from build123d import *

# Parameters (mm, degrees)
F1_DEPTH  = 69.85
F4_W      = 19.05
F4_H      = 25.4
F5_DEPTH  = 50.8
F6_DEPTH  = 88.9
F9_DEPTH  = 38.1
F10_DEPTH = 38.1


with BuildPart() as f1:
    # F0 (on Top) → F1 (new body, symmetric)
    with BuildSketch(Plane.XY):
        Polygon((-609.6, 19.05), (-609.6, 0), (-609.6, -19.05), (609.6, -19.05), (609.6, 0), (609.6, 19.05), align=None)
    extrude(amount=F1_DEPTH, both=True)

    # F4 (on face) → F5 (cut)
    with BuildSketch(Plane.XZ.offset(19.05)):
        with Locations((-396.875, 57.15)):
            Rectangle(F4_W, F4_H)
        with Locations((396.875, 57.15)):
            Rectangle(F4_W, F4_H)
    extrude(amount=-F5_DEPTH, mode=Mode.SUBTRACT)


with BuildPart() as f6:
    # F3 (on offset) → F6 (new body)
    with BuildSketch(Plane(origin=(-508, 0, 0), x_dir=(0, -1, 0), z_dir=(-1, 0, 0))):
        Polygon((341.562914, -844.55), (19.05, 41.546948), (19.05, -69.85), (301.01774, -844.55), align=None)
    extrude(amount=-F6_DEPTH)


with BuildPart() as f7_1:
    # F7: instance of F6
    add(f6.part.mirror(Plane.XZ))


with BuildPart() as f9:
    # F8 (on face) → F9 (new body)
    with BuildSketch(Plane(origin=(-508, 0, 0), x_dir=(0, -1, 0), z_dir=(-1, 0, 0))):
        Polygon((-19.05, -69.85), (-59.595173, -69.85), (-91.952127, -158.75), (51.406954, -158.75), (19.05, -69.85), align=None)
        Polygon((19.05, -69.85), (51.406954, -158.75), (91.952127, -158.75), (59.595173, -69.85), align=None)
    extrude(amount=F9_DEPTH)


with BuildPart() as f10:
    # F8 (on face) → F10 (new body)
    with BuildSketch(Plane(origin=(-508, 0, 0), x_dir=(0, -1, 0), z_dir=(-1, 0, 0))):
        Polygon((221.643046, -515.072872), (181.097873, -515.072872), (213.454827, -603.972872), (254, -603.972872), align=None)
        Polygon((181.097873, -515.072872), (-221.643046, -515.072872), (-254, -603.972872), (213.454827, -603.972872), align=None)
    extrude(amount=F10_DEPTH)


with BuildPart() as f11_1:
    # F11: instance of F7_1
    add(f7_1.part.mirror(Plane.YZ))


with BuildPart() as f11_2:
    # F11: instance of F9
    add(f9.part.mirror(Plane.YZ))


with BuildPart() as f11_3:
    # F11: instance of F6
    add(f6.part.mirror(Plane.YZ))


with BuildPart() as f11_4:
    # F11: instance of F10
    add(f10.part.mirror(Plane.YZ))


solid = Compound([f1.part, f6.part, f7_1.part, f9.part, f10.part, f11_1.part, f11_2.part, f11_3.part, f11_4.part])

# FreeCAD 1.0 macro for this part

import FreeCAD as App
import Part
import Sketcher
Q = App.Units.Quantity


def add_polygon(sketch, points):
    """Adds a closed chain of lines whose ends are joined by coincident constraints."""
    first, n = sketch.GeometryCount, len(points)
    for a, b in zip(points, points[1:] + points[:1]):
        sketch.addGeometry(Part.LineSegment(App.Vector(*a, 0), App.Vector(*b, 0)), False)
    for i in range(n):
        sketch.addConstraint(Sketcher.Constraint("Coincident", first + i, 2, first + (i + 1) % n, 1))

doc = App.newDocument("Part")
body = doc.addObject("PartDesign::Body", "Body")

sketch1 = doc.addObject("Sketcher::SketchObject", "Sketch")
body.addObject(sketch1)
sketch1.AttachmentSupport = (doc.XY_Plane, [""])
sketch1.MapMode = "FlatFace"
add_polygon(sketch1, [(-610, 19), (-610, -19), (610, -19), (610, 19)])
sketch1.addConstraint(Sketcher.Constraint("Vertical", 0))
sketch1.addConstraint(Sketcher.Constraint("Horizontal", 1))
sketch1.addConstraint(Sketcher.Constraint("Vertical", 2))
sketch1.addConstraint(Sketcher.Constraint("Horizontal", 3))
sketch1.addConstraint(Sketcher.Constraint("Symmetric", 0, 2, 2, 2, -1, 1))
sketch1.addConstraint(Sketcher.Constraint("DistanceX", 1, 1, 1, 2, Q("48 in")))
sketch1.addConstraint(Sketcher.Constraint("DistanceY", 0, 2, 0, 1, Q("1.5 in")))
pad1 = doc.addObject("PartDesign::Pad", "Pad")
body.addObject(pad1)
pad1.Profile = sketch1
pad1.Length = Q("5.5 in")
pad1.Midplane = True

sketch2 = doc.addObject("Sketcher::SketchObject", "Sketch001")
body.addObject(sketch2)
sketch2.AttachmentSupport = (doc.XZ_Plane, [""])
sketch2.MapMode = "FlatFace"
sketch2.AttachmentOffset = App.Placement(App.Vector(0, 0, 0.75 * 25.4), App.Rotation())
add_polygon(sketch2, [(-406, 70), (-406, 44), (-387, 44), (-387, 70)])
add_polygon(sketch2, [(387, 70), (387, 44), (406, 44), (406, 70)])
sketch2.addConstraint(Sketcher.Constraint("Vertical", 0))
sketch2.addConstraint(Sketcher.Constraint("Horizontal", 1))
sketch2.addConstraint(Sketcher.Constraint("Vertical", 2))
sketch2.addConstraint(Sketcher.Constraint("Horizontal", 3))
sketch2.addConstraint(Sketcher.Constraint("Vertical", 4))
sketch2.addConstraint(Sketcher.Constraint("Horizontal", 5))
sketch2.addConstraint(Sketcher.Constraint("Vertical", 6))
sketch2.addConstraint(Sketcher.Constraint("Horizontal", 7))
sketch2.addConstraint(Sketcher.Constraint("Symmetric", 1, 2, 4, 2, -2))
sketch2.addConstraint(Sketcher.Constraint("Symmetric", 3, 2, 6, 2, -2))
sketch2.addConstraint(Sketcher.Constraint("DistanceY", 0, 2, 0, 1, Q("1 in")))
sketch2.addConstraint(Sketcher.Constraint("DistanceX", 0, 2, -1, 1, Q("16 in")))
sketch2.addConstraint(Sketcher.Constraint("DistanceX", 1, 1, 1, 2, Q("0.75 in")))
sketch2.addConstraint(Sketcher.Constraint("DistanceY", -1, 1, 0, 2, Q("1.75 in")))
pocket1 = doc.addObject("PartDesign::Pocket", "Pocket")
body.addObject(pocket1)
pocket1.Profile = sketch2
pocket1.Length = Q("2 in")
body2 = doc.addObject("PartDesign::Body", "Body001")

sketch3 = doc.addObject("Sketcher::SketchObject", "Sketch002")
body2.addObject(sketch3)
sketch3.AttachmentSupport = (doc.getObject("YZ_Plane001"), [""])
sketch3.MapMode = "FlatFace"
sketch3.AttachmentOffset = App.Placement(App.Vector(0, 0, -20 * 25.4), App.Rotation())
add_polygon(sketch3, [(-342, -845), (-19, 42), (-19, -70), (-301, -845)])
sketch3.addConstraint(Sketcher.Constraint("Vertical", 1))
sketch3.addConstraint(Sketcher.Constraint("Horizontal", 3))
sketch3.addConstraint(Sketcher.Constraint("Parallel", 0, 2))
sketch3.addConstraint(Sketcher.Constraint("Angle", 0, Q("70 deg")))
sketch3.addConstraint(Sketcher.Constraint("DistanceY", 2, 2, 1, 2, Q("30.5 in")))
sketch3.addConstraint(Sketcher.Constraint("DistanceX", 0, 2, -1, 1, Q("0.75 in")))
sketch3.addConstraint(Sketcher.Constraint("DistanceY", 1, 2, -1, 1, Q("2.75 in")))
sketch3.addConstraint(Sketcher.Constraint("DistanceX", 3, 2, 3, 1, 40.545174))
pad2 = doc.addObject("PartDesign::Pad", "Pad001")
body2.addObject(pad2)
pad2.Profile = sketch3
pad2.Length = Q("3.5 in")
body3 = doc.addObject("PartDesign::Body", "Body002")
doc.recompute()

mirroring = doc.addObject("Part::Mirroring", "Mirroring")
mirroring.Source = body2
mirroring.Base = App.Vector(0, 0, 0)
mirroring.Normal = App.Vector(0, -1, 0)
body3.BaseFeature = mirroring
doc.recompute()
body4 = doc.addObject("PartDesign::Body", "Body003")

sketch4 = doc.addObject("Sketcher::SketchObject", "Sketch003")
body4.addObject(sketch4)
sketch4.AttachmentSupport = (doc.getObject("YZ_Plane003"), [""])
sketch4.MapMode = "FlatFace"
sketch4.AttachmentOffset = App.Placement(App.Vector(0, 0, -20 * 25.4), App.Rotation())
add_polygon(sketch4, [(60, -70), (92, -159), (-92, -159), (-60, -70)])
sketch4.addConstraint(Sketcher.Constraint("Horizontal", 1))
sketch4.addConstraint(Sketcher.Constraint("Horizontal", 3))
sketch4.addConstraint(Sketcher.Constraint("Equal", 0, 2))
sketch4.addConstraint(Sketcher.Constraint("Angle", 0, Q("-70 deg")))
sketch4.addConstraint(Sketcher.Constraint("DistanceY", 1, 2, 2, 2, Q("3.5 in")))
sketch4.addConstraint(Sketcher.Constraint("DistanceY", 0, 2, -1, 1, Q("6.25 in")))
sketch4.addConstraint(Sketcher.Constraint("DistanceX", 2, 2, 0, 2, 151.5473))
sketch4.addConstraint(Sketcher.Constraint("DistanceX", -1, 1, 0, 2, 91.952127))
pad3 = doc.addObject("PartDesign::Pad", "Pad002")
body4.addObject(pad3)
pad3.Profile = sketch4
pad3.Length = Q("1.5 in")
pad3.Reversed = True
body5 = doc.addObject("PartDesign::Body", "Body004")

sketch5 = doc.addObject("Sketcher::SketchObject", "Sketch004")
body5.addObject(sketch5)
sketch5.AttachmentSupport = (doc.getObject("YZ_Plane004"), [""])
sketch5.MapMode = "FlatFace"
sketch5.AttachmentOffset = App.Placement(App.Vector(0, 0, -20 * 25.4), App.Rotation())
add_polygon(sketch5, [(-222, -515), (222, -515), (254, -604), (-254, -604)])
sketch5.addConstraint(Sketcher.Constraint("Horizontal", 0))
sketch5.addConstraint(Sketcher.Constraint("Horizontal", 2))
sketch5.addConstraint(Sketcher.Constraint("Equal", 1, 3))
sketch5.addConstraint(Sketcher.Constraint("DistanceX", 2, 2, 2, 1, Q("20 in")))
sketch5.addConstraint(Sketcher.Constraint("DistanceX", -1, 1, 1, 2, Q("10 in")))
sketch5.addConstraint(Sketcher.Constraint("Angle", 1, Q("-70 deg")))
sketch5.addConstraint(Sketcher.Constraint("DistanceY", 1, 2, 0, 2, Q("3.5 in")))
sketch5.addConstraint(Sketcher.Constraint("DistanceY", 0, 2, -1, 1, 515.072872))
pad4 = doc.addObject("PartDesign::Pad", "Pad003")
body5.addObject(pad4)
pad4.Profile = sketch5
pad4.Length = Q("1.5 in")
pad4.Reversed = True
body6 = doc.addObject("PartDesign::Body", "Body005")
doc.recompute()

mirroring2 = doc.addObject("Part::Mirroring", "Mirroring001")
mirroring2.Source = body3
mirroring2.Base = App.Vector(0, 0, 0)
mirroring2.Normal = App.Vector(1, 0, 0)
body6.BaseFeature = mirroring2
doc.recompute()
body7 = doc.addObject("PartDesign::Body", "Body006")
doc.recompute()

mirroring3 = doc.addObject("Part::Mirroring", "Mirroring002")
mirroring3.Source = body4
mirroring3.Base = App.Vector(0, 0, 0)
mirroring3.Normal = App.Vector(1, 0, 0)
body7.BaseFeature = mirroring3
doc.recompute()
body8 = doc.addObject("PartDesign::Body", "Body007")
doc.recompute()

mirroring4 = doc.addObject("Part::Mirroring", "Mirroring003")
mirroring4.Source = body2
mirroring4.Base = App.Vector(0, 0, 0)
mirroring4.Normal = App.Vector(1, 0, 0)
body8.BaseFeature = mirroring4
doc.recompute()
body9 = doc.addObject("PartDesign::Body", "Body008")
doc.recompute()

mirroring5 = doc.addObject("Part::Mirroring", "Mirroring004")
mirroring5.Source = body5
mirroring5.Base = App.Vector(0, 0, 0)
mirroring5.Normal = App.Vector(1, 0, 0)
body9.BaseFeature = mirroring5
doc.recompute()
mirroring.Visibility = False
mirroring2.Visibility = False
mirroring3.Visibility = False
mirroring4.Visibility = False
mirroring5.Visibility = False

doc.recompute()
